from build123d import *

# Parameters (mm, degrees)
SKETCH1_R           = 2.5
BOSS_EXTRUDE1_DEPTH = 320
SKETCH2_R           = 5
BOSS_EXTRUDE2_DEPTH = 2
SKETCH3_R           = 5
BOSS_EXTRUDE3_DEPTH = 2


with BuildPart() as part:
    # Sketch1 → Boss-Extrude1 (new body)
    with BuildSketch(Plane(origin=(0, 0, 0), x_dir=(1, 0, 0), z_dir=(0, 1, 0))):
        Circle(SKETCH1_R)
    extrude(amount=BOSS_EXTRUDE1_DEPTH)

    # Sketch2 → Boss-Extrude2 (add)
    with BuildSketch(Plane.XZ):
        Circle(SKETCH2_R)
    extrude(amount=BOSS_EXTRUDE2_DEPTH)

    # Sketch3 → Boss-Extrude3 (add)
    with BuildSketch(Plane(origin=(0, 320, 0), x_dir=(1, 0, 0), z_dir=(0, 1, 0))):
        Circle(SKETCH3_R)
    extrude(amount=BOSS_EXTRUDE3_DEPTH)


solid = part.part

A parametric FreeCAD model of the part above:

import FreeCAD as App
import Part
import Sketcher
Q = App.Units.Quantity

doc = App.newDocument("Part")
body = doc.addObject("PartDesign::Body", "Body")

# Sketch on XZ plane
sketch1 = doc.addObject("Sketcher::SketchObject", "Sketch")
body.addObject(sketch1)
sketch1.AttachmentSupport = (doc.XZ_Plane, [""])
sketch1.MapMode = "FlatFace"
sketch1.addGeometry(Part.Circle(App.Vector(0, 0, 0), App.Vector(0, 0, 1), 2.5), False)
sketch1.addConstraint([
    Sketcher.Constraint("Coincident", 0, 3, -1, 1),
    Sketcher.Constraint("Diameter", 0, Q("5 mm")),
])
pad1 = doc.addObject("PartDesign::Pad", "Pad")
body.addObject(pad1)
pad1.Profile = sketch1
pad1.Length = 320
pad1.Reversed = True

# Sketch on XZ plane
sketch2 = doc.addObject("Sketcher::SketchObject", "Sketch001")
body.addObject(sketch2)
sketch2.AttachmentSupport = (doc.XZ_Plane, [""])
sketch2.MapMode = "FlatFace"
sketch2.addGeometry(Part.Circle(App.Vector(0, 0, 0), App.Vector(0, 0, 1), 5), False)
sketch2.addConstraint([
    Sketcher.Constraint("Coincident", 0, 3, -1, 1),
    Sketcher.Constraint("Diameter", 0, Q("10 mm")),
])
pad2 = doc.addObject("PartDesign::Pad", "Pad001")
body.addObject(pad2)
pad2.Profile = sketch2
pad2.Length = 2

# Sketch on XZ plane
sketch3 = doc.addObject("Sketcher::SketchObject", "Sketch002")
body.addObject(sketch3)
sketch3.AttachmentSupport = (doc.XZ_Plane, [""])
sketch3.MapMode = "FlatFace"
sketch3.AttachmentOffset = App.Placement(App.Vector(0, 0, -320), App.Rotation())
sketch3.addGeometry(Part.Circle(App.Vector(0, 0, 0), App.Vector(0, 0, 1), 5), False)
sketch3.addConstraint([
    Sketcher.Constraint("Coincident", 0, 3, -1, 1),
    Sketcher.Constraint("Diameter", 0, Q("10 mm")),
])
pad3 = doc.addObject("PartDesign::Pad", "Pad002")
body.addObject(pad3)
pad3.Profile = sketch3
pad3.Length = 2
pad3.Reversed = True

doc.recompute()
